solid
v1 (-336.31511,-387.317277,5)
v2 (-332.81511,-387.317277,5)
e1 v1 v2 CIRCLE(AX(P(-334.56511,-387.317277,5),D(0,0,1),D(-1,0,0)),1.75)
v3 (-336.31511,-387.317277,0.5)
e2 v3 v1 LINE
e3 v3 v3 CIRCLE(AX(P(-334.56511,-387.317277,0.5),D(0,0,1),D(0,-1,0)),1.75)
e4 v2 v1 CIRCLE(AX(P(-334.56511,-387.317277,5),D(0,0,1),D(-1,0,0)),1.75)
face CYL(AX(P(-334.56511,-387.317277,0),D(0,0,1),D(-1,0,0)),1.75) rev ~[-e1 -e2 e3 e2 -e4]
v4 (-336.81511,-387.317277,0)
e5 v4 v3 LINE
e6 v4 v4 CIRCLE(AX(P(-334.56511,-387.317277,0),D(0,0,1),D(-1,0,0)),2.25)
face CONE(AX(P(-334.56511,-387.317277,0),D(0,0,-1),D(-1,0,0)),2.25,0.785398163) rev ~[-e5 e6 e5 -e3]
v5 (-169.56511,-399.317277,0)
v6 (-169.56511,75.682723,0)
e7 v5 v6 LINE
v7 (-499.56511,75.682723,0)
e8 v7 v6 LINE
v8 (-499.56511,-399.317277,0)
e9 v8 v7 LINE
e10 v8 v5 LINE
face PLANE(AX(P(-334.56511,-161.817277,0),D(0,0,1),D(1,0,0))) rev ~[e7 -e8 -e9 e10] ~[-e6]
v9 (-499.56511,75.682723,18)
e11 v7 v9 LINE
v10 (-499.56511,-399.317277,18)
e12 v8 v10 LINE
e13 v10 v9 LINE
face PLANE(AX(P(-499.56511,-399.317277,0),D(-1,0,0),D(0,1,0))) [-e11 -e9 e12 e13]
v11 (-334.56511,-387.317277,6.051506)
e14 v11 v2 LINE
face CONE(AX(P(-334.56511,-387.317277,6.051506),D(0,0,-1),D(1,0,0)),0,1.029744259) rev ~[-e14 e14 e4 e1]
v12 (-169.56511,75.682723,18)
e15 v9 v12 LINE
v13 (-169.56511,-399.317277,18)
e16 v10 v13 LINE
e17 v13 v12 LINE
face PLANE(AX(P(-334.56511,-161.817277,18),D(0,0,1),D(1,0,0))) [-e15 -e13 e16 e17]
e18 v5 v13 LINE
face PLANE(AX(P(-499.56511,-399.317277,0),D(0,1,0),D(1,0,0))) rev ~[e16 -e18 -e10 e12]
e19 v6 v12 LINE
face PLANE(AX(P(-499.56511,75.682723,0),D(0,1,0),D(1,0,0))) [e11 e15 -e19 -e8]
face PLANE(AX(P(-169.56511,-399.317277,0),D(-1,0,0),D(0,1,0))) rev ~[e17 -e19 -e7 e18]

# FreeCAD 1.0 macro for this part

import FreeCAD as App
import Part
import Sketcher

doc = App.newDocument("Part")
body = doc.addObject("PartDesign::Body", "Body")

# Sketch on XY plane
sketch1 = body.newObject("Sketcher::SketchObject", "Sketch")
sketch1.AttachmentSupport = (doc.getObject("XY_Plane"), [""])
sketch1.MapMode = "FlatFace"
sketch1.addGeometry(Part.LineSegment(App.Vector(-499.56511, 75.682723, 0), App.Vector(-499.56511, -399.317277, 0)), False)
sketch1.addGeometry(Part.LineSegment(App.Vector(-499.56511, -399.317277, 0), App.Vector(-169.56511, -399.317277, 0)), False)
sketch1.addGeometry(Part.LineSegment(App.Vector(-169.56511, -399.317277, 0), App.Vector(-169.56511, 75.682723, 0)), False)
sketch1.addGeometry(Part.LineSegment(App.Vector(-169.56511, 75.682723, 0), App.Vector(-499.56511, 75.682723, 0)), False)
sketch1.addConstraint(Sketcher.Constraint("Coincident", 0, 2, 1, 1))
sketch1.addConstraint(Sketcher.Constraint("Coincident", 1, 2, 2, 1))
sketch1.addConstraint(Sketcher.Constraint("Coincident", 2, 2, 3, 1))
sketch1.addConstraint(Sketcher.Constraint("Coincident", 3, 2, 0, 1))
sketch1.addConstraint(Sketcher.Constraint("Vertical", 0))
sketch1.addConstraint(Sketcher.Constraint("Horizontal", 1))
sketch1.addConstraint(Sketcher.Constraint("Vertical", 2))
sketch1.addConstraint(Sketcher.Constraint("Horizontal", 3))
sketch1.addConstraint(Sketcher.Constraint("DistanceX", 1, 1, 1, 2, 330.0))
sketch1.addConstraint(Sketcher.Constraint("DistanceY", 0, 2, 0, 1, 475.0))
sketch1.addConstraint(Sketcher.Constraint("DistanceX", 0, 2, -1, 1, 499.56511))
sketch1.addConstraint(Sketcher.Constraint("DistanceY", 0, 2, -1, 1, 399.317277))
pad1 = body.newObject("PartDesign::Pad", "Pad")
pad1.Profile = sketch1
pad1.Length = 18

# Sketch on XY plane
sketch2 = body.newObject("Sketcher::SketchObject", "Sketch001")
sketch2.AttachmentSupport = (doc.getObject("XY_Plane"), [""])
sketch2.MapMode = "FlatFace"
sketch2.addGeometry(Part.Circle(App.Vector(-334.56511, -387.317277, 0), App.Vector(0, 0, 1), 1.75), False)
sketch2.addGeometry(Part.Circle(App.Vector(-334.56511, -387.317277, 0), App.Vector(0, 0, 1), 1.75), False)
sketch2.addConstraint(Sketcher.Constraint("Coincident", 1, 3, 0, 3))
sketch2.addConstraint(Sketcher.Constraint("Equal", 0, 1))
sketch2.addConstraint(Sketcher.Constraint("Diameter", 0, 3.5))
sketch2.addConstraint(Sketcher.Constraint("DistanceX", 0, 3, -1, 1, 334.56511))
sketch2.addConstraint(Sketcher.Constraint("DistanceY", 0, 3, -1, 1, 387.317277))
doc.recompute()
hole = body.newObject("PartDesign::Hole", "Hole")
hole.Profile = sketch2
hole.ThreadType = "None"
hole.Diameter = 3.5
hole.DepthType = "Dimension"
hole.Depth = 5
hole.DrillPoint = "Angled"
hole.DrillPointAngle = 118
hole.HoleCutType = "Countersink"
hole.HoleCutDiameter = 4.5
hole.HoleCutCountersinkAngle = 90
hole.Reversed = True

doc.recompute()
